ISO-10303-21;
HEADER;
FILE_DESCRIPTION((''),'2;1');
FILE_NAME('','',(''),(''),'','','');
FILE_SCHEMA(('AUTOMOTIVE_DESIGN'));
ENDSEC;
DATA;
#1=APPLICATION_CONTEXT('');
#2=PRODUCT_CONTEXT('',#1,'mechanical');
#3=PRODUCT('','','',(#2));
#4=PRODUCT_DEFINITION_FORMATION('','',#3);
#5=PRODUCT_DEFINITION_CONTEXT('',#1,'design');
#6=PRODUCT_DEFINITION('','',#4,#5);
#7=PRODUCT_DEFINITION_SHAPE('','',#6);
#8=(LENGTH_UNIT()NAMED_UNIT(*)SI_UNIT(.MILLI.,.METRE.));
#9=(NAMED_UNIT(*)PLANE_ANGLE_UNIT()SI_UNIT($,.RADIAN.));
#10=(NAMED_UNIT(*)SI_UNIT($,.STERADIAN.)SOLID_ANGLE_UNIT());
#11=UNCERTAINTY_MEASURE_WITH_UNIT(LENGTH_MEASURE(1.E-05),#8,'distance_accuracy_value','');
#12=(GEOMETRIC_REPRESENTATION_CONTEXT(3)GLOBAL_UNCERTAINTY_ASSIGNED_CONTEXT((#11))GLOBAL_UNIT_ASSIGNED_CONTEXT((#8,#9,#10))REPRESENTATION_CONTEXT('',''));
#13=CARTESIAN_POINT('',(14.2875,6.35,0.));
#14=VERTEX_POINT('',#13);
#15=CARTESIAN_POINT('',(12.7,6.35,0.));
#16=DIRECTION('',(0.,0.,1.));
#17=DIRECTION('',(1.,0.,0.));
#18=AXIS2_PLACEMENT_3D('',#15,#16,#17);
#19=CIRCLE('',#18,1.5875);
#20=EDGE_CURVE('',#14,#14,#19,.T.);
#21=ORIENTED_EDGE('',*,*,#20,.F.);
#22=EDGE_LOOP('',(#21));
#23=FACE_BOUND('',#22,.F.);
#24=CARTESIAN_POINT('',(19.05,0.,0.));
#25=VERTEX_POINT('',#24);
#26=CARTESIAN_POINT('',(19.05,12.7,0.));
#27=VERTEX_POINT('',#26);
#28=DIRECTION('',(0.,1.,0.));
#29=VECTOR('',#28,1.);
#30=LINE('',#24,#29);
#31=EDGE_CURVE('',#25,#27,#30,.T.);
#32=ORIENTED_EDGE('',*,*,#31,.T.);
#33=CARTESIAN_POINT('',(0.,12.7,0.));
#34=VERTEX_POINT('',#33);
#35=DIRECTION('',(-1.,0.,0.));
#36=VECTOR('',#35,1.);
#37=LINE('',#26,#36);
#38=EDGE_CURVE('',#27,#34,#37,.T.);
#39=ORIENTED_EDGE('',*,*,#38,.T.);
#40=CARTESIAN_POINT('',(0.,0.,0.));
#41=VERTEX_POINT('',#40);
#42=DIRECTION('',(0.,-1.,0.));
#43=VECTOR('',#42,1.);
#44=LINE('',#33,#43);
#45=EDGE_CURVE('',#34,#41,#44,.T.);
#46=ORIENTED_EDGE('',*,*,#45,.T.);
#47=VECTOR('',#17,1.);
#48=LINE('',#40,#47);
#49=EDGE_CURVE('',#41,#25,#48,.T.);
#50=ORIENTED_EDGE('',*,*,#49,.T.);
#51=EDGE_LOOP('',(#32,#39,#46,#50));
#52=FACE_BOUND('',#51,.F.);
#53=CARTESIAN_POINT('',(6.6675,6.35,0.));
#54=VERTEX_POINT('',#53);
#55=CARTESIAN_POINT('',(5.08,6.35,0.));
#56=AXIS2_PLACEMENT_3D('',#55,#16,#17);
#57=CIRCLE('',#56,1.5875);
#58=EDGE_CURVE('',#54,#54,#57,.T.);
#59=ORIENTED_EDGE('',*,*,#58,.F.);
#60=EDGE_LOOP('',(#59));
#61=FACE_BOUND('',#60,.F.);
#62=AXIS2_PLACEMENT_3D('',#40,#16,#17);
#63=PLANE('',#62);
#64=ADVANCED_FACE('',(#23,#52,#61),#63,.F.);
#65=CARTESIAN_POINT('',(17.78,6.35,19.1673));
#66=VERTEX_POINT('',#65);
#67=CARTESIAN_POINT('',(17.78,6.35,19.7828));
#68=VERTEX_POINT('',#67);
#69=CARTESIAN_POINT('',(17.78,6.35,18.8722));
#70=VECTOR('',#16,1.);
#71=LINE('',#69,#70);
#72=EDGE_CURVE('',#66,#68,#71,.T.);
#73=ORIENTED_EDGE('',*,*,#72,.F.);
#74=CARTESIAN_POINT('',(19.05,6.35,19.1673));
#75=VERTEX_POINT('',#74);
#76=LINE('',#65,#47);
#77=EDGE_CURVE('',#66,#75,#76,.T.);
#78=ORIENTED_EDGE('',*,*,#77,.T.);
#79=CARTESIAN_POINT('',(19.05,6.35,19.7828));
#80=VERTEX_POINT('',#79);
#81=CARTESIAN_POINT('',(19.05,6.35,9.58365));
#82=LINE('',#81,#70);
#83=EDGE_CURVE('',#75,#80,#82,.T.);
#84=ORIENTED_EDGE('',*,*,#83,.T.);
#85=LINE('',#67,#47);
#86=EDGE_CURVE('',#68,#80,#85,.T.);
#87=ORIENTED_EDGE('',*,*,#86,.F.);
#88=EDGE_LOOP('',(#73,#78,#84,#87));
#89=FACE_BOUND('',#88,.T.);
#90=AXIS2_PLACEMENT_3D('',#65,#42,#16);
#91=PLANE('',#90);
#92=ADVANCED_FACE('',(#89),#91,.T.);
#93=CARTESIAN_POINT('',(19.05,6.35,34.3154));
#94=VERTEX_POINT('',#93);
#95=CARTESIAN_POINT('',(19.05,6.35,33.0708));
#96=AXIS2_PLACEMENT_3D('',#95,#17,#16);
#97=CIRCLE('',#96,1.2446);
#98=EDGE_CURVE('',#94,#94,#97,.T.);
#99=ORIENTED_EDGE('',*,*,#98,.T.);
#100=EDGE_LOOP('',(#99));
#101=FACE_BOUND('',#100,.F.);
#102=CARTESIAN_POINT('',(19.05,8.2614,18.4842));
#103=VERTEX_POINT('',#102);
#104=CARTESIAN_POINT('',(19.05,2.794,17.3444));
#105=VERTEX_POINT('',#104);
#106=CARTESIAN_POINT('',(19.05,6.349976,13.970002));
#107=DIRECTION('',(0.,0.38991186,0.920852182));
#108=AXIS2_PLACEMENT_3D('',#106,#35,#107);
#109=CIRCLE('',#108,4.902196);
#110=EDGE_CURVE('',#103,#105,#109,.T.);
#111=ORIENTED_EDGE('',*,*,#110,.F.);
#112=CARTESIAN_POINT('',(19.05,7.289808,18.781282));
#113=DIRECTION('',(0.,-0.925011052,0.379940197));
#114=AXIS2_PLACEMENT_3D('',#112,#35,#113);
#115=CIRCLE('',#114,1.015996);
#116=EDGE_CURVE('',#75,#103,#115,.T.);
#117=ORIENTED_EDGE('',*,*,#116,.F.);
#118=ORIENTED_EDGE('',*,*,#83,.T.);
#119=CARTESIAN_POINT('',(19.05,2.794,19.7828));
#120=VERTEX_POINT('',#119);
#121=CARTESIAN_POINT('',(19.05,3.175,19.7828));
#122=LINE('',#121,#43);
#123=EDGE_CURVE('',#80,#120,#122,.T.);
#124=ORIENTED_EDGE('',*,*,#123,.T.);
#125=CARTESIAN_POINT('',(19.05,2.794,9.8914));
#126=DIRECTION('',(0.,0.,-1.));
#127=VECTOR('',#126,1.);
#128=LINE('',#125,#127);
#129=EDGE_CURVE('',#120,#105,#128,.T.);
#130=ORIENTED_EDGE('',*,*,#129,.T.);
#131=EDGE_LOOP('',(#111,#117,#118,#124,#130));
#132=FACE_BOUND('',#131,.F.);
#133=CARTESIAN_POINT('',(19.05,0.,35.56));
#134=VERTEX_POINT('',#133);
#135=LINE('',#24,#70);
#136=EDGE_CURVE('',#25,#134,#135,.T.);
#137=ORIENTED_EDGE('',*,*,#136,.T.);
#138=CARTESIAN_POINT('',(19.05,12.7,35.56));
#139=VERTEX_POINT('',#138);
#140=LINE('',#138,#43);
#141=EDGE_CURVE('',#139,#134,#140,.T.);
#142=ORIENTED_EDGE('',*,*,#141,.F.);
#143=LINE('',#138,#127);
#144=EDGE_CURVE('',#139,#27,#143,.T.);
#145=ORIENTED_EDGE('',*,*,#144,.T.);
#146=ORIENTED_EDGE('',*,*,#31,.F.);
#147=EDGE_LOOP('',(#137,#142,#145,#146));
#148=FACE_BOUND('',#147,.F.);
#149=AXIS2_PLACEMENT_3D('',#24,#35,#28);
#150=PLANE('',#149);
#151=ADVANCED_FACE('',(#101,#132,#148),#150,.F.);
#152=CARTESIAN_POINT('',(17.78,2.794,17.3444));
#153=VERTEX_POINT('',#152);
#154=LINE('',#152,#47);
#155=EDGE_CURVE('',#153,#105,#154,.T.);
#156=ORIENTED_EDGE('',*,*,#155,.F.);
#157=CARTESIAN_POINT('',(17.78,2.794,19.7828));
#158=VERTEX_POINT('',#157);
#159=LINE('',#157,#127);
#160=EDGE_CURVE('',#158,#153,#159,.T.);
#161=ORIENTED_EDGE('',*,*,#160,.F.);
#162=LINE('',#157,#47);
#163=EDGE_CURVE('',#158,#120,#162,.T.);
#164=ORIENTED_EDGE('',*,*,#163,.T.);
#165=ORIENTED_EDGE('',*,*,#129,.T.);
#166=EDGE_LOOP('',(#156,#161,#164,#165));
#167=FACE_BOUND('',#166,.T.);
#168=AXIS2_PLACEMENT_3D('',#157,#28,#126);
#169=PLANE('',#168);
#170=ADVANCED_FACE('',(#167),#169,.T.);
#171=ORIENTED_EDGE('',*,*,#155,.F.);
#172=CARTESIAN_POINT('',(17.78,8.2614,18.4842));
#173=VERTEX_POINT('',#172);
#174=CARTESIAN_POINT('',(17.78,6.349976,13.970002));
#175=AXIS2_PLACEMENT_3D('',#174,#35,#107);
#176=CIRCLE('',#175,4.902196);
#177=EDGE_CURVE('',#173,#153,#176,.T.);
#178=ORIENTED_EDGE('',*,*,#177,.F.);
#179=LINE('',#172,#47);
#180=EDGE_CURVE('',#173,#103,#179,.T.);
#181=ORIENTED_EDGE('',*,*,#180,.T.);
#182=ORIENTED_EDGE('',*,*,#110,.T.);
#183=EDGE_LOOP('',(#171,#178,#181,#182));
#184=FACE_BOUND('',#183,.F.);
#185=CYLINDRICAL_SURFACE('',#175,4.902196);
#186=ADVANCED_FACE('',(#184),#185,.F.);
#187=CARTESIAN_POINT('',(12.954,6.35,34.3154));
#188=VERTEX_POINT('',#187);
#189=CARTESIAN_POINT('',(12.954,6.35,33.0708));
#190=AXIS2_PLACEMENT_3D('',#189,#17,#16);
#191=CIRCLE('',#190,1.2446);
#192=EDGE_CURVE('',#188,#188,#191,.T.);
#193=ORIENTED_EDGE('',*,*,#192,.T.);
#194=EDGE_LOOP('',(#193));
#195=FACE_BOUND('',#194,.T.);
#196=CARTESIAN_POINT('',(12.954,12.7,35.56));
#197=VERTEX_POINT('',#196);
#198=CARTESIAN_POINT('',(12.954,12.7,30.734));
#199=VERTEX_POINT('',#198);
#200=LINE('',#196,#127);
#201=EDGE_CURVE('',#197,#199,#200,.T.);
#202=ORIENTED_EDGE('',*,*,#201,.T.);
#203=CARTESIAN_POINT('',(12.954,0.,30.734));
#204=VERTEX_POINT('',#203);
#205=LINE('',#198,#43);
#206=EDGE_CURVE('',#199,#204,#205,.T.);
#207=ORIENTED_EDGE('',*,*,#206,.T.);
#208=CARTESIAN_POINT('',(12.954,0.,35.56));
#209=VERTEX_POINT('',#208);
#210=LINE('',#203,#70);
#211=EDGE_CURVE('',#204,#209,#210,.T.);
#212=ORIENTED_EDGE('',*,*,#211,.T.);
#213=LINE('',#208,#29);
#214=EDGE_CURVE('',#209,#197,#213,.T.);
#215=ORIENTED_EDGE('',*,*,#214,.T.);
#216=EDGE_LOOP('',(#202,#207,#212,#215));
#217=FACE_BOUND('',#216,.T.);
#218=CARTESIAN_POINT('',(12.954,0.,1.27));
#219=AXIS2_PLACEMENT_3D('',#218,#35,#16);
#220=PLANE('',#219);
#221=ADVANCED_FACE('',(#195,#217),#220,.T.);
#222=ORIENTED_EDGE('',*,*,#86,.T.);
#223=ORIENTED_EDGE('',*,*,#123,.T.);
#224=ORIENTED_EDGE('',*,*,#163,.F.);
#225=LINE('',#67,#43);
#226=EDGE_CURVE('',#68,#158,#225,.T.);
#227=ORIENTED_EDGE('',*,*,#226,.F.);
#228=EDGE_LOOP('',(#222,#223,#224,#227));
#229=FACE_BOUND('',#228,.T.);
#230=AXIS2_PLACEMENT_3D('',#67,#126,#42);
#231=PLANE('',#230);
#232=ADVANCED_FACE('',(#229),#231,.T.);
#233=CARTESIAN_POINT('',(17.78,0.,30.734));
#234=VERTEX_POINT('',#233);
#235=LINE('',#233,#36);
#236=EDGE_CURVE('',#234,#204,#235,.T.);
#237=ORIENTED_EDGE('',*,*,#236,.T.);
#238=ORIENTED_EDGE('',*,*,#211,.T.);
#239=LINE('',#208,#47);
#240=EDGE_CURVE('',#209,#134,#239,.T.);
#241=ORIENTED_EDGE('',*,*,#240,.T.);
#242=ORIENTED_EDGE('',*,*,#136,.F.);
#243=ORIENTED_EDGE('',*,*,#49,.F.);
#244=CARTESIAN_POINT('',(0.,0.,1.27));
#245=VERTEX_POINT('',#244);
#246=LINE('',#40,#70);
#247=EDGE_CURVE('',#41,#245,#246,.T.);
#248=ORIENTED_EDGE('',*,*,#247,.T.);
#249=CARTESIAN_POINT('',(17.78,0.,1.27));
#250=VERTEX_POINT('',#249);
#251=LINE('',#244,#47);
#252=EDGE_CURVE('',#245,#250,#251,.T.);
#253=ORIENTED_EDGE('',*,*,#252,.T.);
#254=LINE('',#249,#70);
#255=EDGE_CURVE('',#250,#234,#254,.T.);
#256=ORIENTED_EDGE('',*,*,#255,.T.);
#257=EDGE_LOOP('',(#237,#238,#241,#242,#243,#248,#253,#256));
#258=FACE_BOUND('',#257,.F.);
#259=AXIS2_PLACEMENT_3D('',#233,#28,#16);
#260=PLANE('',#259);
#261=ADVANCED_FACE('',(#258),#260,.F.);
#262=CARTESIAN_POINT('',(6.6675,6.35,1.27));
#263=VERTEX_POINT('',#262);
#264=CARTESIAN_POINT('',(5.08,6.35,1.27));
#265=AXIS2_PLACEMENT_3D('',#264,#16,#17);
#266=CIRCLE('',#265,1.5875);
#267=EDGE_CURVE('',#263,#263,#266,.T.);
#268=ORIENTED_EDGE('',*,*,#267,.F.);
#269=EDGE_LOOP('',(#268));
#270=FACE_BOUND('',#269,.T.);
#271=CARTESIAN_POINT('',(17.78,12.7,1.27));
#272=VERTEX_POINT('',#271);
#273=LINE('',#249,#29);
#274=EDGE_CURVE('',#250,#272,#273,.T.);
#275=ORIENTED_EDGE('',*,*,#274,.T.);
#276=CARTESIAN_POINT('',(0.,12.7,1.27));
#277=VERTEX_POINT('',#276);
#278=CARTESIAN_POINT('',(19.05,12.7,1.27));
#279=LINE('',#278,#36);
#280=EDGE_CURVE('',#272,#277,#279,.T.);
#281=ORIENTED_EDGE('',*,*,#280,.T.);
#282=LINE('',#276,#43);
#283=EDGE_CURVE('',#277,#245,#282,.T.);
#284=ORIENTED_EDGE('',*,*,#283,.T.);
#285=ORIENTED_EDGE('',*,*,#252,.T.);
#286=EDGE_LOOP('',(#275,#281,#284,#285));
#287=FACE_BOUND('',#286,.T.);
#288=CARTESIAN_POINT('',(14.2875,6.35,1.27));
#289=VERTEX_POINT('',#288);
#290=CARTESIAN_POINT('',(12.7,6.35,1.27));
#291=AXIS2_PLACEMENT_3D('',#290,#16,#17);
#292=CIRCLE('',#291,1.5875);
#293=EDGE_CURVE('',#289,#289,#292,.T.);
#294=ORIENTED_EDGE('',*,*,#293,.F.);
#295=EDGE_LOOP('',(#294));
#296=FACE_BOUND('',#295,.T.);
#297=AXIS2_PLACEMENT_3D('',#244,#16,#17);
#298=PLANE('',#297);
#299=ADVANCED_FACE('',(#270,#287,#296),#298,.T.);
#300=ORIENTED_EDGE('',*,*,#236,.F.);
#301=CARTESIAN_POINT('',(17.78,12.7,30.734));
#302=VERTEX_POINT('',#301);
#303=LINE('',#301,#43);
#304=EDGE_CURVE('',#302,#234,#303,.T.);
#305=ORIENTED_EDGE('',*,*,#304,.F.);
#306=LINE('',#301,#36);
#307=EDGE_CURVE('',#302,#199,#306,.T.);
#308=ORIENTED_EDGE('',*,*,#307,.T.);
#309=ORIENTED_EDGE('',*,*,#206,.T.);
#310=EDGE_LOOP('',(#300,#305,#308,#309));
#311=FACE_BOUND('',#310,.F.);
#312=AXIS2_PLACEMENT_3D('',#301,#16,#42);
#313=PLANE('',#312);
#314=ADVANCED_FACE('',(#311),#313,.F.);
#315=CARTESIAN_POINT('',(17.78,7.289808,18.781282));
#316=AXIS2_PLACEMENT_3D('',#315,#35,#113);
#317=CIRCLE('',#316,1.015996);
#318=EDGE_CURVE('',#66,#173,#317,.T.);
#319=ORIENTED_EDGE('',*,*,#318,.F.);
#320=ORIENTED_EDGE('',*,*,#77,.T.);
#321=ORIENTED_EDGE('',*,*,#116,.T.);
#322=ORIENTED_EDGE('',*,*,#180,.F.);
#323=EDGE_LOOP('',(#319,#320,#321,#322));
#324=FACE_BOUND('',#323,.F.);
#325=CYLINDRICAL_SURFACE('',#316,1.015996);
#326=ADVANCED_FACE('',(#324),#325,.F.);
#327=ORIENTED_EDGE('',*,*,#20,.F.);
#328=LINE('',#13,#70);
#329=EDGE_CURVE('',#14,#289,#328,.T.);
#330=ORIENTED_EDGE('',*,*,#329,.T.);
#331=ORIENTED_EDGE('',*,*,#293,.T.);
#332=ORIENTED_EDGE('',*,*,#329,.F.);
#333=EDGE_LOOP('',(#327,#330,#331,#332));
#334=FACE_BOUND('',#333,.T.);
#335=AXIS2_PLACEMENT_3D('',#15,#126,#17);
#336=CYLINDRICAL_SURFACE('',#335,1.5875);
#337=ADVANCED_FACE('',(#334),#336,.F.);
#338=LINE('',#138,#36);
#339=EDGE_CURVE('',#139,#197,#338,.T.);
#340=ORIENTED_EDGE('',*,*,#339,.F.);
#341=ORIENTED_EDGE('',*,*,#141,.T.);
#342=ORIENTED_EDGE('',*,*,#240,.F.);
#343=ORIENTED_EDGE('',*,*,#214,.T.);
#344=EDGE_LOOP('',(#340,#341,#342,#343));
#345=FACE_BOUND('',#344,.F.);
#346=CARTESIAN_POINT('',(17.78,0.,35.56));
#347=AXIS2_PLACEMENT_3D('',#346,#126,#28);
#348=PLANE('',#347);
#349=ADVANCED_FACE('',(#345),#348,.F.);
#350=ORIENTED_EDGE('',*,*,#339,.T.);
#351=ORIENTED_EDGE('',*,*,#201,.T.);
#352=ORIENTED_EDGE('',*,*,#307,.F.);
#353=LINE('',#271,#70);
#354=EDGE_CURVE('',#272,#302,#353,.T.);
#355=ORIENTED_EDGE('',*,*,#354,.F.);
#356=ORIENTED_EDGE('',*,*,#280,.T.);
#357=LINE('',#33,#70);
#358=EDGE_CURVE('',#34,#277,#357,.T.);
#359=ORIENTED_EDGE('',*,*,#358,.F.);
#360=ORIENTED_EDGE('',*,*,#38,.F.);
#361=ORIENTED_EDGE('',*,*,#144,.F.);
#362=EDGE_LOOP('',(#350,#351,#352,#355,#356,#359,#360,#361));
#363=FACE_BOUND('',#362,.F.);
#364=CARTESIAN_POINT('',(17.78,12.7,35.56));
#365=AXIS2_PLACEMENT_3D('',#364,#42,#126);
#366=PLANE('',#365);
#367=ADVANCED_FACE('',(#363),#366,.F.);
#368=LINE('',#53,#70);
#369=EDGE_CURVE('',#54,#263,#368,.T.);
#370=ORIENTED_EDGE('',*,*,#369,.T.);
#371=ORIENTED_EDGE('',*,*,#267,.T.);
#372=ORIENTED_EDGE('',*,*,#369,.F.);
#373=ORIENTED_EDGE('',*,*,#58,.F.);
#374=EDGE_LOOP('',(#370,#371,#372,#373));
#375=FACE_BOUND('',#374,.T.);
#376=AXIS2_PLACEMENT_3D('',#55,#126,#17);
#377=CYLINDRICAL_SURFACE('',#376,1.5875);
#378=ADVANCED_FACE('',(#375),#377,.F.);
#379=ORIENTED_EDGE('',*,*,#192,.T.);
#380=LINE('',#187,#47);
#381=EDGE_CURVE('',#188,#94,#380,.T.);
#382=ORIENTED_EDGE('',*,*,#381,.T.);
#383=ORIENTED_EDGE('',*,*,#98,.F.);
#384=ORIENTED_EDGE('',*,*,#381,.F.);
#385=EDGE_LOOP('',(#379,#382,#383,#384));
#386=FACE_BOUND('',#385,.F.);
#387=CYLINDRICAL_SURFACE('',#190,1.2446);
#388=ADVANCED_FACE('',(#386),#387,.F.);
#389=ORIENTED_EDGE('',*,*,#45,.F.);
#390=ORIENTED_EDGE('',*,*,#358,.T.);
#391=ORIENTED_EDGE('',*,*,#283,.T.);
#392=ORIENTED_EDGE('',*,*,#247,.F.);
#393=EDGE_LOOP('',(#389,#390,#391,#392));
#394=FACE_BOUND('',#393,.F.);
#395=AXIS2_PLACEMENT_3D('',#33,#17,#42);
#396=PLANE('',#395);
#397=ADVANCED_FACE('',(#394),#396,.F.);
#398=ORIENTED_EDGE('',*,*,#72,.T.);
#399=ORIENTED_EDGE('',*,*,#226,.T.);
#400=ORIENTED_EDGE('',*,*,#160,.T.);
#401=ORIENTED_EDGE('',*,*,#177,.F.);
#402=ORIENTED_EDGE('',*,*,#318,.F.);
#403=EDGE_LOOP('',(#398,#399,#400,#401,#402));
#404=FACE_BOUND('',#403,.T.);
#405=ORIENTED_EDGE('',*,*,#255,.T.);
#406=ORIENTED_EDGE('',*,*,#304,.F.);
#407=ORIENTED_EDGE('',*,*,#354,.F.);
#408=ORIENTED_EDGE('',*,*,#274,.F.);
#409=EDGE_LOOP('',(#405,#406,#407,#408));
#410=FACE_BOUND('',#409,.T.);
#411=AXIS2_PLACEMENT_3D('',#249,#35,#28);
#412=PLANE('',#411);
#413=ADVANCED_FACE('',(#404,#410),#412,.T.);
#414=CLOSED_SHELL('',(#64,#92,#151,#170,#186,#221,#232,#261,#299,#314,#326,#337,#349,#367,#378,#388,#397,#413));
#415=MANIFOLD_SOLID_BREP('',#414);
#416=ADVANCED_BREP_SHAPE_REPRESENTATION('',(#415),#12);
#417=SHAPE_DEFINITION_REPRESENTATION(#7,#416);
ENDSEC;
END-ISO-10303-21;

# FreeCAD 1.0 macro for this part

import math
import FreeCAD as App
import Part
import Sketcher
from FreeCAD import Vector
Q = App.Units.Quantity


def add_polygon(sketch, points):
    """Adds a closed chain of lines whose ends are joined by coincident constraints."""
    first, n = sketch.GeometryCount, len(points)
    for a, b in zip(points, points[1:] + points[:1]):
        sketch.addGeometry(Part.LineSegment(App.Vector(*a, 0), App.Vector(*b, 0)), False)
    for i in range(n):
        sketch.addConstraint(Sketcher.Constraint("Coincident", first + i, 2, first + (i + 1) % n, 1))

doc = App.newDocument("Part")
body = doc.addObject("PartDesign::Body", "Body")

# Sketch on XY plane
sketch1 = body.newObject("Sketcher::SketchObject", "Sketch")
sketch1.AttachmentSupport = (doc.getObject("XY_Plane"), [""])
sketch1.MapMode = "FlatFace"
add_polygon(sketch1, [(0, 12.7), (0, 0), (19.1, 0), (19.1, 12.7)])  # lines 0-3
sketch1.addGeometry(Part.Circle(Vector(5.1, 6.3, 0), Vector(0, 0, 1), 1.6), False)  # 4
sketch1.addGeometry(Part.Circle(Vector(12.7, 6.3, 0), Vector(0, 0, 1), 1.6), False)  # 5
sketch1.addConstraint([
    Sketcher.Constraint("Vertical", 0),
    Sketcher.Constraint("Horizontal", 1),
    Sketcher.Constraint("Vertical", 2),
    Sketcher.Constraint("Horizontal", 3),
    Sketcher.Constraint("Coincident", 0, 2, -1, 1),
    Sketcher.Constraint("Equal", 4, 5),
    Sketcher.Constraint("Horizontal", 4, 3, 5, 3),
    Sketcher.Constraint("Diameter", 4, Q("0.125 in")),
    Sketcher.Constraint("DistanceY", 0, 2, 0, 1, Q("0.5 in")),
    Sketcher.Constraint("DistanceX", 1, 1, 1, 2, Q("0.75 in")),
    Sketcher.Constraint("DistanceX", -1, 1, 4, 3, Q("0.2 in")),
    Sketcher.Constraint("DistanceX", -1, 1, 5, 3, Q("0.5 in")),
    Sketcher.Constraint("DistanceY", -1, 1, 4, 3, Q("0.25 in")),
])
pad1 = body.newObject("PartDesign::Pad", "Pad")
pad1.Profile = sketch1
pad1.Length = Q("0.05 in")

# Sketch on XY plane
sketch2 = body.newObject("Sketcher::SketchObject", "Sketch001")
sketch2.AttachmentSupport = (doc.getObject("XY_Plane"), [""])
sketch2.MapMode = "FlatFace"
sketch2.AttachmentOffset = App.Placement(Vector(0, 0, 0.05 * 25.4), App.Rotation())
add_polygon(sketch2, [(19.1, 0), (19.1, 12.7), (17.8, 12.7), (17.8, 0)])  # lines 0-3
sketch2.addConstraint([
    Sketcher.Constraint("Vertical", 0),
    Sketcher.Constraint("Horizontal", 1),
    Sketcher.Constraint("Vertical", 2),
    Sketcher.Constraint("Horizontal", 3),
    Sketcher.Constraint("PointOnObject", 2, 2, -1),
    Sketcher.Constraint("DistanceX", 1, 2, 1, 1, Q("0.05 in")),
    Sketcher.Constraint("DistanceY", 0, 1, 0, 2, Q("0.5 in")),
    Sketcher.Constraint("DistanceX", -1, 1, 1, 2, Q("0.7 in")),
])
pad2 = body.newObject("PartDesign::Pad", "Pad001")
pad2.Profile = sketch2
pad2.Length = Q("1.35 in")

# Sketch on YZ plane
sketch3 = body.newObject("Sketcher::SketchObject", "Sketch002")
sketch3.AttachmentSupport = (doc.getObject("YZ_Plane"), [""])
sketch3.MapMode = "FlatFace"
sketch3.AttachmentOffset = App.Placement(Vector(0, 0, 0.7 * 25.4), App.Rotation())
sketch3.addGeometry([
    Part.ArcOfCircle(Part.Circle(Vector(7.3, 18.8, 0), Vector(0, 0, 1), 1), math.radians(-17), math.radians(158)),  # 0
    Part.ArcOfCircle(Part.Circle(Vector(6.3, 14, 0), Vector(0, 0, 1), 4.9), math.radians(137), math.radians(427)),  # 1
    Part.LineSegment(Vector(2.8, 17.3, 0), Vector(2.8, 19.8, 0)),  # 2
    Part.LineSegment(Vector(2.8, 19.8, 0), Vector(6.3, 19.8, 0)),  # 3
    Part.LineSegment(Vector(6.3, 19.8, 0), Vector(6.3, 19.2, 0)),  # 4
], False)
sketch3.addConstraint([
    Sketcher.Constraint("Coincident", 0, 1, 1, 2),
    Sketcher.Constraint("Coincident", 1, 1, 2, 1),
    Sketcher.Constraint("Coincident", 2, 2, 3, 1),
    Sketcher.Constraint("Coincident", 3, 2, 4, 1),
    Sketcher.Constraint("Coincident", 4, 2, 0, 2),
    Sketcher.Constraint("Vertical", 2),
    Sketcher.Constraint("Horizontal", 3),
    Sketcher.Constraint("Vertical", 4),
    Sketcher.Constraint("Vertical", 1, 3, 3, 2),
    Sketcher.Constraint("Radius", 0, Q("0.04 in")),
    Sketcher.Constraint("Radius", 1, Q("0.193 in")),
    Sketcher.Constraint("DistanceX", 3, 1, 3, 2, Q("0.14 in")),
    Sketcher.Constraint("DistanceY", 2, 1, 2, 2, Q("0.096 in")),
    Sketcher.Constraint("DistanceX", -1, 1, 1, 3, Q("0.25 in")),
    Sketcher.Constraint("DistanceX", 1, 3, 0, 3, Q("0.037 in")),
    Sketcher.Constraint("DistanceY", -1, 1, 1, 3, Q("0.55 in")),
    Sketcher.Constraint("DistanceY", 4, 2, 4, 1, Q("0.6155 mm")),
])
pocket1 = body.newObject("PartDesign::Pocket", "Pocket")
pocket1.Profile = sketch3
pocket1.Length = Q("1 in")
pocket1.Reversed = True

# Sketch on YZ plane
sketch4 = body.newObject("Sketcher::SketchObject", "Sketch003")
sketch4.AttachmentSupport = (doc.getObject("YZ_Plane"), [""])
sketch4.MapMode = "FlatFace"
sketch4.AttachmentOffset = App.Placement(Vector(0, 0, 0.7 * 25.4), App.Rotation())
add_polygon(sketch4, [(0, 35.6), (12.7, 35.6), (12.7, 30.7), (0, 30.7)])  # lines 0-3
sketch4.addConstraint([
    Sketcher.Constraint("Horizontal", 0),
    Sketcher.Constraint("Vertical", 1),
    Sketcher.Constraint("Horizontal", 2),
    Sketcher.Constraint("Vertical", 3),
    Sketcher.Constraint("PointOnObject", 2, 2, -2),
    Sketcher.Constraint("DistanceX", 0, 1, 0, 2, Q("0.5 in")),
    Sketcher.Constraint("DistanceY", 1, 2, 1, 1, Q("0.19 in")),
    Sketcher.Constraint("DistanceY", -1, 1, 0, 2, Q("1.4 in")),
])
pad3 = body.newObject("PartDesign::Pad", "Pad002")
pad3.Profile = sketch4
pad3.Length = Q("0.19 in")
pad3.Reversed = True

# Sketch on YZ plane
sketch5 = body.newObject("Sketcher::SketchObject", "Sketch004")
sketch5.AttachmentSupport = (doc.getObject("YZ_Plane"), [""])
sketch5.MapMode = "FlatFace"
sketch5.AttachmentOffset = App.Placement(Vector(0, 0, 0.51 * 25.4), App.Rotation())
sketch5.addGeometry(Part.Circle(Vector(6.3, 33.1, 0), Vector(0, 0, 1), 1.2), False)
sketch5.addConstraint([
    Sketcher.Constraint("Diameter", 0, Q("0.098 in")),
    Sketcher.Constraint("DistanceX", -1, 1, 0, 3, Q("0.25 in")),
    Sketcher.Constraint("DistanceY", -1, 1, 0, 3, Q("1.302 in")),
])
doc.recompute()
hole = body.newObject("PartDesign::Hole", "Hole")
hole.Profile = sketch5
hole.ThreadType = "None"
hole.Diameter = Q("0.098 in")
hole.DepthType = "ThroughAll"
hole.Reversed = True

doc.recompute()
